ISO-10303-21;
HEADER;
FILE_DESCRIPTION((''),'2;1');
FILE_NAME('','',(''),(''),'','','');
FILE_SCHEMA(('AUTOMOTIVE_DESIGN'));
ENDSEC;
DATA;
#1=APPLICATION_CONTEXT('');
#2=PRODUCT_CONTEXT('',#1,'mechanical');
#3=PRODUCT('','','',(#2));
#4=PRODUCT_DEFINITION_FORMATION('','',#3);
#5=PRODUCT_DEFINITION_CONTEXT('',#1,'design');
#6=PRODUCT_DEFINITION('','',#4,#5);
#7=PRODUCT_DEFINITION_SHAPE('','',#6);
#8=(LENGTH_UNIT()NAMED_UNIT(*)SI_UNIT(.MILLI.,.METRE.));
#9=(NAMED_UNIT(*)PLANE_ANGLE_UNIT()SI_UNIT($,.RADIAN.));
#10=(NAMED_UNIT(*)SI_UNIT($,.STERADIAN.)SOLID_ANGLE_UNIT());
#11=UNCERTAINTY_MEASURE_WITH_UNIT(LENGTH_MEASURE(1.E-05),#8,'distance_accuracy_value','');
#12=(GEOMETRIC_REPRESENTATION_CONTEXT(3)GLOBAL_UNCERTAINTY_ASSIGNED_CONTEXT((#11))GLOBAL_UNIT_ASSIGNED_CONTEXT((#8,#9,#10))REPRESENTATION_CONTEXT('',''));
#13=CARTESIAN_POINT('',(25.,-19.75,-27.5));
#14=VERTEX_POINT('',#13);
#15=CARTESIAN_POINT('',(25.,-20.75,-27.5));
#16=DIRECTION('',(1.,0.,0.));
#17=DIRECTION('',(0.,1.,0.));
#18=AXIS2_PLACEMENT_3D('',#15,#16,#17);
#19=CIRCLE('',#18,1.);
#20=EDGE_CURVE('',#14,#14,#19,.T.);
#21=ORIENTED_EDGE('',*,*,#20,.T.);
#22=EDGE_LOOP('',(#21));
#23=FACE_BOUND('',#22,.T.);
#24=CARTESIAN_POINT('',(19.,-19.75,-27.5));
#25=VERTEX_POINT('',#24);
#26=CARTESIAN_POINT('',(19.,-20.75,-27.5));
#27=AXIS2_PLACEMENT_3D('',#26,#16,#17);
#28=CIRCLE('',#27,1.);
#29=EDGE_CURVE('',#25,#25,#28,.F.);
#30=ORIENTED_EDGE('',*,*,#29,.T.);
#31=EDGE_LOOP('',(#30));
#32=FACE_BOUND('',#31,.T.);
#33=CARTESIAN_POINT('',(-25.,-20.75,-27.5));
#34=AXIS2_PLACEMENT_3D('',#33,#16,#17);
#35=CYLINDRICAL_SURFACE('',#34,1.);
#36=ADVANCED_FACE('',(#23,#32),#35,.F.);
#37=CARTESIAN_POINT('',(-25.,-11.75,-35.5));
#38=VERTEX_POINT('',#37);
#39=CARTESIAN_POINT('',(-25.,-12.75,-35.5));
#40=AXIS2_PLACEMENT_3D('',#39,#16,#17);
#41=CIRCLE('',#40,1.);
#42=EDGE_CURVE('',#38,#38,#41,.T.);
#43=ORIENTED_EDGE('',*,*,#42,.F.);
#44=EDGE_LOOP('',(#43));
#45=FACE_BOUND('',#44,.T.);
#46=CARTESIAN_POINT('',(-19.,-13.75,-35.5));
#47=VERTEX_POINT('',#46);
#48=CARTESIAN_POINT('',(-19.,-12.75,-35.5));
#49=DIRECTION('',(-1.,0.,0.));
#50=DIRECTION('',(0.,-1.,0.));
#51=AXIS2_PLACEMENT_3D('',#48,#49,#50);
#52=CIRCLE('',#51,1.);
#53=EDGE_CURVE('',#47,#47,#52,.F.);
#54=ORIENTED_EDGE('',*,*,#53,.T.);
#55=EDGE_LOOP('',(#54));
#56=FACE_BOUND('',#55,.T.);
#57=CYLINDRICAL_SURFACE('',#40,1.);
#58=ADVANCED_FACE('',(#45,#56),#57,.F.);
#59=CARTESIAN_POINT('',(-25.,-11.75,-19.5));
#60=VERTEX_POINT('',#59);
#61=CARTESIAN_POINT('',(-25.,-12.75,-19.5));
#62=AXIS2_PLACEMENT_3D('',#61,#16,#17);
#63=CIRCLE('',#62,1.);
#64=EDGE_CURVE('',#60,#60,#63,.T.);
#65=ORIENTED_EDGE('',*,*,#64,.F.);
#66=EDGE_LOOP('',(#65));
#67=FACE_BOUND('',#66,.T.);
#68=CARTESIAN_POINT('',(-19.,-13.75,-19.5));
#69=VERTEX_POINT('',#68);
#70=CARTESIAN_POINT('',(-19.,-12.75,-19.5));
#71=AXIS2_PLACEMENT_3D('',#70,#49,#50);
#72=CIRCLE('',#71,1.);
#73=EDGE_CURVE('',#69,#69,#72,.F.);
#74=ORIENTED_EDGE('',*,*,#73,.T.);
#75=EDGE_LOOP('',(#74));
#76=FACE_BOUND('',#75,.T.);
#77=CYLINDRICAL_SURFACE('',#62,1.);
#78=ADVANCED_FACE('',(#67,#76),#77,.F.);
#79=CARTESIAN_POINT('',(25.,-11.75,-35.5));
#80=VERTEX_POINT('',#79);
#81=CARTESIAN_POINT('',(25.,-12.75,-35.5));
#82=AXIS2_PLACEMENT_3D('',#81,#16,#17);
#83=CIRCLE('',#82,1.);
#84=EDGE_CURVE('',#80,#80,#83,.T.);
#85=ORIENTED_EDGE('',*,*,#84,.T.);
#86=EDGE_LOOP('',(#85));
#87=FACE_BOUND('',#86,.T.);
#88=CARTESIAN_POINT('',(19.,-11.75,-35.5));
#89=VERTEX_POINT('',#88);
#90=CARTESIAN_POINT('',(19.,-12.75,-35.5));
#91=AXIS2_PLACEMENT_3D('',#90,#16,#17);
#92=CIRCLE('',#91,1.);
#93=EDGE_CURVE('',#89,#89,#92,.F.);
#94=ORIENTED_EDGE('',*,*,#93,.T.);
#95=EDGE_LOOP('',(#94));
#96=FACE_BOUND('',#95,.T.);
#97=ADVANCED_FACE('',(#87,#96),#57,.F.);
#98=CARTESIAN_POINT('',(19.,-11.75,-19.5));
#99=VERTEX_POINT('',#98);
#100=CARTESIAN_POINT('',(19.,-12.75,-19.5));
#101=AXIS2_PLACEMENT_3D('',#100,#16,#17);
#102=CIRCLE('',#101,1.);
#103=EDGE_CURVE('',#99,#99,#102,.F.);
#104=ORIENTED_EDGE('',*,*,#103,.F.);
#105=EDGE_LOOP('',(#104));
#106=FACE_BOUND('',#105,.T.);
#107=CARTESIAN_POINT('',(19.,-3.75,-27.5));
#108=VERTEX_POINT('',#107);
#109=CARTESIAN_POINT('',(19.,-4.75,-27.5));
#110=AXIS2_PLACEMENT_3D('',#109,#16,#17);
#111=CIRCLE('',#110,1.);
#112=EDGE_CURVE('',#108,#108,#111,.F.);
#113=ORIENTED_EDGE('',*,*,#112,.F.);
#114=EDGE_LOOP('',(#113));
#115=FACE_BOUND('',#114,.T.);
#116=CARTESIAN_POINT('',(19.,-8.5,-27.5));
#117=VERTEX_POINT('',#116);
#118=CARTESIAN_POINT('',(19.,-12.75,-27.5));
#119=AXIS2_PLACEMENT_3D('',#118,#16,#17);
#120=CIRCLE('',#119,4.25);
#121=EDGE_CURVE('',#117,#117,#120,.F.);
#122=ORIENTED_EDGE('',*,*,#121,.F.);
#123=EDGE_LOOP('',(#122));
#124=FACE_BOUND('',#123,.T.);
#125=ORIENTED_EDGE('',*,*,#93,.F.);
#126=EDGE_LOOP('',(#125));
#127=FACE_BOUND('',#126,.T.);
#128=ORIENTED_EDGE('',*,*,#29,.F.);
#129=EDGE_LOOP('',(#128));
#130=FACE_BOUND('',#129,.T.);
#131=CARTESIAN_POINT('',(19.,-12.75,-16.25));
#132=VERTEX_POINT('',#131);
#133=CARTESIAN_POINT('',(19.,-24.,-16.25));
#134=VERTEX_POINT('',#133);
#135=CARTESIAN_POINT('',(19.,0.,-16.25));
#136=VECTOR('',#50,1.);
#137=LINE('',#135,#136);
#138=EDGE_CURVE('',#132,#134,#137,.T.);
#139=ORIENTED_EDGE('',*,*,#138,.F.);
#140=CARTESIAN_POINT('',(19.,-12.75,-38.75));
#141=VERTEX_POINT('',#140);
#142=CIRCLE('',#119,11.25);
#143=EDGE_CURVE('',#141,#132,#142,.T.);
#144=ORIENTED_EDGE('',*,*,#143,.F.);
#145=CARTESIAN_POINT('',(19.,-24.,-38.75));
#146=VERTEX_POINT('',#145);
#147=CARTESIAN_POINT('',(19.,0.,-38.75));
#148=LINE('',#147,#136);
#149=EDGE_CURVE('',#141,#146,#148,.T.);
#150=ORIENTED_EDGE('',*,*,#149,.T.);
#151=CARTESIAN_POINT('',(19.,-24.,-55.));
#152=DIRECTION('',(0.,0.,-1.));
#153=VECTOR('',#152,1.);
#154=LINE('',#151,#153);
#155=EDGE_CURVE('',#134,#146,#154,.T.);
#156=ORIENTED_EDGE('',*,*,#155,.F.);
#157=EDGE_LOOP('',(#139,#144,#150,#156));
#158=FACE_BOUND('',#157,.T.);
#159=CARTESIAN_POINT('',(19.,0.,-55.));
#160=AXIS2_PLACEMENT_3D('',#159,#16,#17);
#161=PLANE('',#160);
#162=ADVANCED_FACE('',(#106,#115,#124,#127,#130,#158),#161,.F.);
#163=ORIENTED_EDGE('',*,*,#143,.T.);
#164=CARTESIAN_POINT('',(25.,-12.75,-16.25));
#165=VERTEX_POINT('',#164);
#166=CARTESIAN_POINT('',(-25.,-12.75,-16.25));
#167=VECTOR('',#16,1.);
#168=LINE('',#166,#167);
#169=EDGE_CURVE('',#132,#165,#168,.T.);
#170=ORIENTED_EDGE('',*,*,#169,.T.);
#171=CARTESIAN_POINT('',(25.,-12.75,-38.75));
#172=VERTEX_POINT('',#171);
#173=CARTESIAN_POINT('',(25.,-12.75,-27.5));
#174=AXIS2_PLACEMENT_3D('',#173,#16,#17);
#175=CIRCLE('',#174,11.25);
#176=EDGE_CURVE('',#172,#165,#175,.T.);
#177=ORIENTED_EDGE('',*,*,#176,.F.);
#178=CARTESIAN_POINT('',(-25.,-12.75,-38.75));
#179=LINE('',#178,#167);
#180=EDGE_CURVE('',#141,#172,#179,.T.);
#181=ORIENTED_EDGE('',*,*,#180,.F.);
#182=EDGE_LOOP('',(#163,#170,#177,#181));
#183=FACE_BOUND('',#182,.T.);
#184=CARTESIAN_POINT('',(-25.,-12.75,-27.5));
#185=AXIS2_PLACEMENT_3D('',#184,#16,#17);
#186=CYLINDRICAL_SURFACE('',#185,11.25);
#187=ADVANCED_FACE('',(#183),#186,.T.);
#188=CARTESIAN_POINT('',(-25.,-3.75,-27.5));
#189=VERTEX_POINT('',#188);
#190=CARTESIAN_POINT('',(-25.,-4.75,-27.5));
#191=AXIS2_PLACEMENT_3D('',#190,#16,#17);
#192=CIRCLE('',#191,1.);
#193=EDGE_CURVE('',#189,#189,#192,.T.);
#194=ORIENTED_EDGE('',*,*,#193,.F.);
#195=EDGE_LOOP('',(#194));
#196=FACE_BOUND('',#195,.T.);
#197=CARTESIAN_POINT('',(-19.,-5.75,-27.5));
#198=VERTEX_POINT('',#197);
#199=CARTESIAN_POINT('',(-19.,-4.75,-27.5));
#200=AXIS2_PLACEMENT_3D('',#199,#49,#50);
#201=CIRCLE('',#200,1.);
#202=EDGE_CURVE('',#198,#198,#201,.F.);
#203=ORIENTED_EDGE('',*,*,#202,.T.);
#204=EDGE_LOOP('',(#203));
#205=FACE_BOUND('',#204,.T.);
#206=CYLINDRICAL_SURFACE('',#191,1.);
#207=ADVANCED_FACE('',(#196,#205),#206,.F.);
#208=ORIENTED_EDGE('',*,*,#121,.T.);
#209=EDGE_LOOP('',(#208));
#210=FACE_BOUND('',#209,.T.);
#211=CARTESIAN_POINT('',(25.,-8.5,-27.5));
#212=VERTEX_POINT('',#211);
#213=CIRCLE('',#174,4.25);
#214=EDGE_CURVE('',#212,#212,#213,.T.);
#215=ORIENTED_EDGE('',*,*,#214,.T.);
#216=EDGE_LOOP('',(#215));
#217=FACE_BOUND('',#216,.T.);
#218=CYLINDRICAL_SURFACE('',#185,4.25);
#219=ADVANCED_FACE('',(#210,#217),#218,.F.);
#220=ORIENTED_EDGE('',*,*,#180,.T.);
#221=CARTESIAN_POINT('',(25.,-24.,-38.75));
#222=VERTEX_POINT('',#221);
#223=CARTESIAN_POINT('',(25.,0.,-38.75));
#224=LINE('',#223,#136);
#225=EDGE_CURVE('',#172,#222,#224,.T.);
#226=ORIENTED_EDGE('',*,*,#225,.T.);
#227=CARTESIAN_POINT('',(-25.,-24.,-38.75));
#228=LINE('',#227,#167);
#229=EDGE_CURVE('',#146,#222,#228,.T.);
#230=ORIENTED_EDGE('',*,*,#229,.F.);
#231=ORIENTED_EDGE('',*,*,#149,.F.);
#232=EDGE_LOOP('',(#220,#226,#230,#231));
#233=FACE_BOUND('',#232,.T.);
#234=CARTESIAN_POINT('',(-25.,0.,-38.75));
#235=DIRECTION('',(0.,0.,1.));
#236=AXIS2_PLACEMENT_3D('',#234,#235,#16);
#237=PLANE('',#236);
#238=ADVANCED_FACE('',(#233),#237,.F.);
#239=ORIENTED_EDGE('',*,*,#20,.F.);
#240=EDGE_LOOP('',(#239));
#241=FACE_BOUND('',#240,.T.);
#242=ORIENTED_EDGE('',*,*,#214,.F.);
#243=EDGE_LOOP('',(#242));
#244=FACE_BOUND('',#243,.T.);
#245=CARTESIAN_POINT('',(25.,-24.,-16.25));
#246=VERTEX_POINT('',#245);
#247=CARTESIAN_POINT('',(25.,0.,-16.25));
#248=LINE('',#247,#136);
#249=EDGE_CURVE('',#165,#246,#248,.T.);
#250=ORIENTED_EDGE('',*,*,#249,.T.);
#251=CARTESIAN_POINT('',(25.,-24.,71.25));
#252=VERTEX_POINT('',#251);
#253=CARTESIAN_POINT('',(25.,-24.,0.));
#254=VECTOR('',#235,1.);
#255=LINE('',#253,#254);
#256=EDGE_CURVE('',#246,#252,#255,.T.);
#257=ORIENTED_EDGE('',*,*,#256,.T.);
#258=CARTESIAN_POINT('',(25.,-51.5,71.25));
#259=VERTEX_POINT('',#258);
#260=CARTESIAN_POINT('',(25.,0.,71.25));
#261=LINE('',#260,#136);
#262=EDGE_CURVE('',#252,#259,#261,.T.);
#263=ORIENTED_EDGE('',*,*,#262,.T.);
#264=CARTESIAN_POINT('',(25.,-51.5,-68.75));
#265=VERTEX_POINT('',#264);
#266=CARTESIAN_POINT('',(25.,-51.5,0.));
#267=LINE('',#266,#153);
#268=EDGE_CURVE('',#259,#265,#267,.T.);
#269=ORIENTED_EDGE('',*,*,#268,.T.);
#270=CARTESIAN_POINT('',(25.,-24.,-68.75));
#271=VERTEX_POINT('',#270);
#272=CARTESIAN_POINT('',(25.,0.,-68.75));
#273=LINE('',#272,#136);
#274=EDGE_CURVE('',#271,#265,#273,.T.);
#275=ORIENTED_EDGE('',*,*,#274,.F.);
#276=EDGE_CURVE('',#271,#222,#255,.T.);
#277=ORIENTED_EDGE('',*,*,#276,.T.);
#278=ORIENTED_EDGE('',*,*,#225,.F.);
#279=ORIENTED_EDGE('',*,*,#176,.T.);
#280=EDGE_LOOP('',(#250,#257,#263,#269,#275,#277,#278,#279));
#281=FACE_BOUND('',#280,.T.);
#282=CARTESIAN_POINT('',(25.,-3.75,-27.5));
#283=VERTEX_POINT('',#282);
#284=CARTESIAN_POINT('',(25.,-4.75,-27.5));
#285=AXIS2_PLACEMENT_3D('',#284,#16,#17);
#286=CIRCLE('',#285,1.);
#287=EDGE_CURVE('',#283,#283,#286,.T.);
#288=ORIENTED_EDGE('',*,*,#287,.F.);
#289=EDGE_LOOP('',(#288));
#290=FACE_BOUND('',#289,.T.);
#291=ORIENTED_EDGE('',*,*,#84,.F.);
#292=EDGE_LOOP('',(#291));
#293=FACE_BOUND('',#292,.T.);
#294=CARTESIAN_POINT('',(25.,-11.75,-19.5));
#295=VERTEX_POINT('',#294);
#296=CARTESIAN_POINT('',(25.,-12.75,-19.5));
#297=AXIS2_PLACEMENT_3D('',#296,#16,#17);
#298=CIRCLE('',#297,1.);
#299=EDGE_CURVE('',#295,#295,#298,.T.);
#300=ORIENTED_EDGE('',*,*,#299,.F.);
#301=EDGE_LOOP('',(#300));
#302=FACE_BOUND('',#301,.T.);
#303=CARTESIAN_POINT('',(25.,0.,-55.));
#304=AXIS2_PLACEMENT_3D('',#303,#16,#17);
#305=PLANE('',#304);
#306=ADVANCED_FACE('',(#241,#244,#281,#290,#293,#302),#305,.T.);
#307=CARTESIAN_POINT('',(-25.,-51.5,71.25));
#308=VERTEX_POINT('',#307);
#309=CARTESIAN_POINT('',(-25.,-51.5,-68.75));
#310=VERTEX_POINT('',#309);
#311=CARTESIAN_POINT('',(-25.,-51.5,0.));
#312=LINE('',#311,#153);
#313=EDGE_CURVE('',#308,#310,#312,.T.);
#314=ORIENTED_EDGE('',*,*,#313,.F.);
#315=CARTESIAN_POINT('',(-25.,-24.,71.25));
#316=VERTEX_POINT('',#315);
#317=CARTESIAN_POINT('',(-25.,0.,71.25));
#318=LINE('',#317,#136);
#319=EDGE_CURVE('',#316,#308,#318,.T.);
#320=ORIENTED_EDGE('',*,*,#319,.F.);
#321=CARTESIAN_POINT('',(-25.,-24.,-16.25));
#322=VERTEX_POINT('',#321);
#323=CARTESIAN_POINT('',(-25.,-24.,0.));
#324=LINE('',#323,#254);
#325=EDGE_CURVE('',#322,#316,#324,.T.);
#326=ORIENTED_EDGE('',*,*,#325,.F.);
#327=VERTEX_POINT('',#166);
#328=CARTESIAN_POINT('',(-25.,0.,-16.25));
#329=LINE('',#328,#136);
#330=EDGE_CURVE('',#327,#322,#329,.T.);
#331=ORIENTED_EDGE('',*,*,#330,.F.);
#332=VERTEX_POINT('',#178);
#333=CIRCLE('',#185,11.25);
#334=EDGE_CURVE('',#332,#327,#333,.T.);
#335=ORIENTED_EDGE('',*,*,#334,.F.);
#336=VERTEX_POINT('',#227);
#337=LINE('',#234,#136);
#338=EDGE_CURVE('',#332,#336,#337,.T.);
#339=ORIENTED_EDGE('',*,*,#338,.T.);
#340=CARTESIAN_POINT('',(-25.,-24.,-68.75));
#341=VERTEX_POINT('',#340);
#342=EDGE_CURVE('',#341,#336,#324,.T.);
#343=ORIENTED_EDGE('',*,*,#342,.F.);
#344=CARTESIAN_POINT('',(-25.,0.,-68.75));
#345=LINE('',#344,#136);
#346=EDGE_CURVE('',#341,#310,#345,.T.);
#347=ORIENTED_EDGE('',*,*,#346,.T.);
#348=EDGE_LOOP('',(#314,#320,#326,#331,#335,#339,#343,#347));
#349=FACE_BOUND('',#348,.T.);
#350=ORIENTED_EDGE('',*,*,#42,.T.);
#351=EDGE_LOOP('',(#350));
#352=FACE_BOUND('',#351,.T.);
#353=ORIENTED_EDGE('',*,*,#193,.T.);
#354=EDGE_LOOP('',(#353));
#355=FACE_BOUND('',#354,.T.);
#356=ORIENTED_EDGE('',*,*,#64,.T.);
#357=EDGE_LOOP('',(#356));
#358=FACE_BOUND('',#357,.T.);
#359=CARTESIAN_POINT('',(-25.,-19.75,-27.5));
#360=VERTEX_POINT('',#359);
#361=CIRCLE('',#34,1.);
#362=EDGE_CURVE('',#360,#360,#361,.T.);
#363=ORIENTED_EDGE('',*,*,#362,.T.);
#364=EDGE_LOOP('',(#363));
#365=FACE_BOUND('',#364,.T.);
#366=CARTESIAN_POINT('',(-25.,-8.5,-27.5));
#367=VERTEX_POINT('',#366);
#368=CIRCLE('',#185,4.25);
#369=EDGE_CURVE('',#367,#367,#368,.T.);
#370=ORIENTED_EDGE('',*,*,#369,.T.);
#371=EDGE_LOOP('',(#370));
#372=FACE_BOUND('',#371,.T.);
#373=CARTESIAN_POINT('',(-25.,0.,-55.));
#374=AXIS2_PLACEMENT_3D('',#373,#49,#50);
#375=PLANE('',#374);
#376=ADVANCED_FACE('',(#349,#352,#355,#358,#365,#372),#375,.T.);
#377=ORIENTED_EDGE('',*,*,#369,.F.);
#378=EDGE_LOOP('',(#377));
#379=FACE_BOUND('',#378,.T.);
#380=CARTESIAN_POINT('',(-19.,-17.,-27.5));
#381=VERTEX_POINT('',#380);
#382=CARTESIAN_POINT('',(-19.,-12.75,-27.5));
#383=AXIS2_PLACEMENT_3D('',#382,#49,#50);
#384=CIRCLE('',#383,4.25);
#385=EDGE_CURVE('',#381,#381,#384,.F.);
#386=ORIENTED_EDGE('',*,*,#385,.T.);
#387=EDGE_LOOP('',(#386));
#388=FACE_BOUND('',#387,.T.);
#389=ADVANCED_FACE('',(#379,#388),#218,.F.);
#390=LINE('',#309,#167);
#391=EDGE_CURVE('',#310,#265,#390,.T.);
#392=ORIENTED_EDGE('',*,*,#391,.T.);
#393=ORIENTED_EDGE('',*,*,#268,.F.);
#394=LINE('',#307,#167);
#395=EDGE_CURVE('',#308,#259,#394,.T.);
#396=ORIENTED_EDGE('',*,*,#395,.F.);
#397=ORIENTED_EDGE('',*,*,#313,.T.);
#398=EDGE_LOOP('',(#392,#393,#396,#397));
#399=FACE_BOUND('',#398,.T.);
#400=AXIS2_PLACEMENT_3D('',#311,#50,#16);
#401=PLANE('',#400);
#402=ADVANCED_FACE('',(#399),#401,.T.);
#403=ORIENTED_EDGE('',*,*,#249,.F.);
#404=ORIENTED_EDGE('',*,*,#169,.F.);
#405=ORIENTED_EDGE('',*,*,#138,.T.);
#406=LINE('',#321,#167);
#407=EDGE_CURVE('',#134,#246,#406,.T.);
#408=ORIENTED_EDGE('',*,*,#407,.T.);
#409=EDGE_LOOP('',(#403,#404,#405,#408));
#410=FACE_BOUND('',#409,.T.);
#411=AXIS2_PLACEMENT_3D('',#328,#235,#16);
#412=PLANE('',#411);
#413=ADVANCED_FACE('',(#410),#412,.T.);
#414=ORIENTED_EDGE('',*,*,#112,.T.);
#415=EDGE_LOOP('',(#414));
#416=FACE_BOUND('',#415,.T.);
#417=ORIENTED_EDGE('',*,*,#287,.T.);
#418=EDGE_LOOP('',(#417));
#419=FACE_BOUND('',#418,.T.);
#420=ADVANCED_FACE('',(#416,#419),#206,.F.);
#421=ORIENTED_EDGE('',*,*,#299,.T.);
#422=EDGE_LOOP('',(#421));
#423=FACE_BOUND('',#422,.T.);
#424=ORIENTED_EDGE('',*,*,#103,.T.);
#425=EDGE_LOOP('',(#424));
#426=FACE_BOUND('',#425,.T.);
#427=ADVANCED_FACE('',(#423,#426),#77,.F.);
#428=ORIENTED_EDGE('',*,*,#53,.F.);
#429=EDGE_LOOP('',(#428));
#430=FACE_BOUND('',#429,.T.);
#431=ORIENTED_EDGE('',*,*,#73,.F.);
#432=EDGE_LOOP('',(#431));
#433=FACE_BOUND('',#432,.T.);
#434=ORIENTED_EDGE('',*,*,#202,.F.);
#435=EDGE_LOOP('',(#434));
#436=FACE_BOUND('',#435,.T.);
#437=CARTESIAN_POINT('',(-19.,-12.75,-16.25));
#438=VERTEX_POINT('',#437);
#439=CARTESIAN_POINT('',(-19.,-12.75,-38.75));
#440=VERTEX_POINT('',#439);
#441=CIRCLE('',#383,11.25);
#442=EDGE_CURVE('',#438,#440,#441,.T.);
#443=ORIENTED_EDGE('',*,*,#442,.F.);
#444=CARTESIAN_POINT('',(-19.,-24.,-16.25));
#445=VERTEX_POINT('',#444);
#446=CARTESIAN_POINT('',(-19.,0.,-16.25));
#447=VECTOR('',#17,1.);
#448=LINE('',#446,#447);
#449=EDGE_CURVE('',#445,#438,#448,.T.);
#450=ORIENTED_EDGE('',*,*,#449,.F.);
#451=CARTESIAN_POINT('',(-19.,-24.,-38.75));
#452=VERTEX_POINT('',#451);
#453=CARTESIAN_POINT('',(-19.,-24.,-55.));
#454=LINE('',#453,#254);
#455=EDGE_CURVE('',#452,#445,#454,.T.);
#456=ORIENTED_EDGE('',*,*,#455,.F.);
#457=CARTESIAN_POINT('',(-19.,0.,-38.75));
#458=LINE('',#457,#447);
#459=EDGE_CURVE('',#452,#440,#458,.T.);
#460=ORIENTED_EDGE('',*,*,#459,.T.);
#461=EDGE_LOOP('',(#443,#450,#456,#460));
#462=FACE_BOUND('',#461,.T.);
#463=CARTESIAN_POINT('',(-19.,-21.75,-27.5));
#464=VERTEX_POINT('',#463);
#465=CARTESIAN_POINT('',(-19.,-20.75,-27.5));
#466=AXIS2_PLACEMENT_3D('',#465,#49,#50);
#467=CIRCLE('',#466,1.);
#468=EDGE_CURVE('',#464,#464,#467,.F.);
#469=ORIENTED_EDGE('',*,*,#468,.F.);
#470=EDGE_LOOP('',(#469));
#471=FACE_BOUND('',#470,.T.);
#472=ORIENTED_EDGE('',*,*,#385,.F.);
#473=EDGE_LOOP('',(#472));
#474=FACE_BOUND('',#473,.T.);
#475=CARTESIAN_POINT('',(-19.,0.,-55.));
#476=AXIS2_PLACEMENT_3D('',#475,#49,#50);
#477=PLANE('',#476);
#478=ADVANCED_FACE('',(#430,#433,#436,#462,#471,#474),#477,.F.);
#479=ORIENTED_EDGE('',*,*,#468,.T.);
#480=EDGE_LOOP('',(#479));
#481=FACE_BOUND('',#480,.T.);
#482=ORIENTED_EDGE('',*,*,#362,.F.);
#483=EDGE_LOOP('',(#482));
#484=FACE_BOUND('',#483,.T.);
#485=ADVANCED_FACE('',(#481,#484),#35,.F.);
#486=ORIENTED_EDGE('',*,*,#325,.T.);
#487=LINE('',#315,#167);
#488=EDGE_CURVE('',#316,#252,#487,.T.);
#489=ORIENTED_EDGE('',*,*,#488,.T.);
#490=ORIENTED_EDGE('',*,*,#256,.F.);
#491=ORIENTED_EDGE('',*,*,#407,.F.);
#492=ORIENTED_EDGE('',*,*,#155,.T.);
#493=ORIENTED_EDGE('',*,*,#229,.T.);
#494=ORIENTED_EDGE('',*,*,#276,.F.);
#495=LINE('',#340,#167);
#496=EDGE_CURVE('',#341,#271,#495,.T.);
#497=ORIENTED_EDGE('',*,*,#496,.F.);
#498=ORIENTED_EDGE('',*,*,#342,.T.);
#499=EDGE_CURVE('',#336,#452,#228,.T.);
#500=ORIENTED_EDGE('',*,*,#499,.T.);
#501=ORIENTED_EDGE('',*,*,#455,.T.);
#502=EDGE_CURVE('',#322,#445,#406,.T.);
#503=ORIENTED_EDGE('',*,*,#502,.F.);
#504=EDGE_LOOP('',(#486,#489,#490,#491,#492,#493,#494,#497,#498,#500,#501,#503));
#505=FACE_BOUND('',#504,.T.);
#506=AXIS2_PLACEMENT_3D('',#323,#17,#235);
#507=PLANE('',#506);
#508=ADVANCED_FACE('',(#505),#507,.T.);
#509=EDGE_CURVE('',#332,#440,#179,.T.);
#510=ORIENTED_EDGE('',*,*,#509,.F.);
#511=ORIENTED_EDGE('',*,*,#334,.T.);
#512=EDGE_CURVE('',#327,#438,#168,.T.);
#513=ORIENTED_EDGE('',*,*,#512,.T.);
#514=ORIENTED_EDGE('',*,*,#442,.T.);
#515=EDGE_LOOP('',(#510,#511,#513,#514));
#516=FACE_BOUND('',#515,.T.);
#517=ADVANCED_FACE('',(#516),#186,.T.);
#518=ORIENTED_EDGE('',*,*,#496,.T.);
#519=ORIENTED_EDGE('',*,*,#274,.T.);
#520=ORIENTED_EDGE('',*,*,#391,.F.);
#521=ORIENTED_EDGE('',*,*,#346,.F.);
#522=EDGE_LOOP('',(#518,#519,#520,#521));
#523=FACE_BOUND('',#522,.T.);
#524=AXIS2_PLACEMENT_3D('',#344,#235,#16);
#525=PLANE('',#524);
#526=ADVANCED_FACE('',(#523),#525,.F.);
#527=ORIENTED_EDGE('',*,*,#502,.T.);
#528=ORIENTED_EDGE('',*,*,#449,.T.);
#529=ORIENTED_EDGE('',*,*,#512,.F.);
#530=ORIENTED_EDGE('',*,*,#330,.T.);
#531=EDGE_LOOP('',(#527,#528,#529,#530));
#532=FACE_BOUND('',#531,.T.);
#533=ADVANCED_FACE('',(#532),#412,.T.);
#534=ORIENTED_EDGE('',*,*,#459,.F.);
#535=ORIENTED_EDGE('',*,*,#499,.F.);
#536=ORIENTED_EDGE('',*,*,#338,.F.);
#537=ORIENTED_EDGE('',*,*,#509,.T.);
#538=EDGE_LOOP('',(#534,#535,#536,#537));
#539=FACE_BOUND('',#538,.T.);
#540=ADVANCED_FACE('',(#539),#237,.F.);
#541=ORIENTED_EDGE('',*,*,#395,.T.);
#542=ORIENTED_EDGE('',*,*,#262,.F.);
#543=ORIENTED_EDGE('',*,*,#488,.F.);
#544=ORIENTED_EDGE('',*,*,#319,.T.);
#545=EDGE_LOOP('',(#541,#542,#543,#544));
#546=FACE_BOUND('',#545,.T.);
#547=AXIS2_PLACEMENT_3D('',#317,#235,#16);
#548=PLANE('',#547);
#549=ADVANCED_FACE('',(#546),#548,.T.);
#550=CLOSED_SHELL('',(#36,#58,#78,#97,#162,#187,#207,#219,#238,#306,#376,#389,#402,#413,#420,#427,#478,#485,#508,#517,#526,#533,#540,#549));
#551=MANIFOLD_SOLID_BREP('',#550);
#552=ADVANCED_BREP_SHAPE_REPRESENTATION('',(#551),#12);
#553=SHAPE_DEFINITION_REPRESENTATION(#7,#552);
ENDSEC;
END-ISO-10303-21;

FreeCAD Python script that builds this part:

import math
import FreeCAD as App
import Part
import Sketcher

V = App.Vector
Q = App.Units.Quantity


def add_polygon(sketch, points):
    """Adds a closed chain of lines whose ends are joined by coincident constraints."""
    first, n = sketch.GeometryCount, len(points)
    for a, b in zip(points, points[1:] + points[:1]):
        sketch.addGeometry(Part.LineSegment(App.Vector(*a, 0), App.Vector(*b, 0)), False)
    for i in range(n):
        sketch.addConstraint(Sketcher.Constraint("Coincident", first + i, 2, first + (i + 1) % n, 1))

doc = App.newDocument("Part")
params = doc.addObject("Spreadsheet::Sheet", "Params")
for row, (alias, value) in enumerate([
    ("sketch1_width", "50 mm"),
    ("sketch1_height", "170 mm"),
    ("pad1_length", "55 mm"),
    ("sketch2_width", "34 mm"),
    ("sketch2_height", "27 mm"),
    ("sketch3_diameter", "2 mm"),
    ("sketch3_diameter2", "8.5 mm"),
    ("sketch3_width", "24 mm"),
    ("sketch3_height", "10 mm"),
    ("sketch4_width", "2 mm"),
    ("sketch4_height", "24 mm"),
    ("sketch5_width", "24 mm"),
    ("sketch5_height", "35 mm"),
    ("sketch5_radius", "11.25 mm"),
    ("sketch5_width2", "11.25 mm"),
    ("sketch6_width", "38 mm"),
    ("sketch6_height", "10 mm"),
    ("sketch7_height", "55 mm"),
    ("sketch7_height2", "28.5 mm"),
    ("sketch7_width", "35.25 mm"),
    ("sketch7_width2", "2.25 mm"),
    ("sketch8_width", "34 mm"),
    ("sketch8_height", "35.25 mm"),
    ("sketch9_height", "55 mm"),
    ("sketch9_radius", "10.25 mm"),
    ("sketch10_width", "15 mm"),
    ("sketch10_height", "28.5 mm"),
    ("pad2_length", "8 mm"),
    ("sketch11_width", "34 mm"),
    ("sketch11_height", "25.25 mm"),
    ("pad3_length", "13.25 mm"),
    ("sketch12_diameter", "9 mm"),
    ("pocket9_length", "8 mm"),
    ("sketch13_height", "55 mm"),
    ("sketch13_width", "106.25 mm"),
    ("pocket10_length", "175.384812 mm"),
    ("sketch14_height", "140 mm"),
    ("sketch14_width", "27.5 mm"),
    ("pad4_length", "50 mm"),
], start=1):
    params.set(f"A{row}", alias)
    params.set(f"B{row}", "=" + value)
    params.setAlias(f"B{row}", alias)

body = doc.addObject("PartDesign::Body", "Body")

# Sketch on XY plane
sketch1 = body.newObject("Sketcher::SketchObject", "Sketch")
sketch1.AttachmentSupport = (doc.getObject("XY_Plane"), [""])
sketch1.MapMode = "FlatFace"
add_polygon(sketch1, [(-25, 0), (-25, -170), (25, -170), (25, 0)])  # lines 0-3
sketch1.addConstraint([
    Sketcher.Constraint("Vertical", 0),
    Sketcher.Constraint("Horizontal", 1),
    Sketcher.Constraint("Vertical", 2),
    Sketcher.Constraint("Horizontal", 3),
    Sketcher.Constraint("Symmetric", 2, 2, 3, 2, -1, 1),
    Sketcher.Constraint("DistanceX", 1, 1, 1, 2, Q("50 mm")),
    Sketcher.Constraint("DistanceY", 0, 2, 0, 1, Q("170 mm")),
])
sketch1.setExpression("Constraints[9]", "Params.sketch1_width")
sketch1.setExpression("Constraints[10]", "Params.sketch1_height")
pad1 = body.newObject("PartDesign::Pad", "Pad")
pad1.Profile = sketch1
pad1.setExpression("Length", "Params.pad1_length")
pad1.Reversed = True

# Sketch on XY plane
sketch2 = body.newObject("Sketcher::SketchObject", "Sketch001")
sketch2.AttachmentSupport = (doc.getObject("XY_Plane"), [""])
sketch2.MapMode = "FlatFace"
add_polygon(sketch2, [(-17, 0), (-17, -27), (17, -27), (17, 0)])  # lines 0-3
sketch2.addConstraint([
    Sketcher.Constraint("Vertical", 0),
    Sketcher.Constraint("Horizontal", 1),
    Sketcher.Constraint("Vertical", 2),
    Sketcher.Constraint("Horizontal", 3),
    Sketcher.Constraint("Symmetric", 2, 2, 3, 2, -1, 1),
    Sketcher.Constraint("DistanceX", 1, 1, 1, 2, Q("34 mm")),
    Sketcher.Constraint("DistanceY", 0, 2, 0, 1, Q("27 mm")),
])
sketch2.setExpression("Constraints[9]", "Params.sketch2_width")
sketch2.setExpression("Constraints[10]", "Params.sketch2_height")
pocket1 = body.newObject("PartDesign::Pocket", "Pocket")
pocket1.Profile = sketch2
pocket1.Type = "ThroughAll"

# Sketch on YZ plane
sketch3 = body.newObject("Sketcher::SketchObject", "Sketch002")
sketch3.AttachmentSupport = (doc.getObject("YZ_Plane"), [""])
sketch3.MapMode = "FlatFace"
sketch3.AttachmentOffset = App.Placement(V(0, 0, 25), App.Rotation())
add_polygon(sketch3, [(0, -45), (-24, -45), (-24, -55), (0, -55)])  # lines 0-3
add_polygon(sketch3, [(0, 0), (-24, 0), (-24, -10), (0, -10)])  # lines 4-7
sketch3.addGeometry(Part.Circle(V(-12.75, -27.5, 0), V(0, 0, 1), 4.25), False)  # 8
sketch3.addGeometry(Part.Circle(V(-12.75, -35.5, 0), V(0, 0, 1), 1), False)  # 9
sketch3.addGeometry(Part.Circle(V(-4.75, -27.5, 0), V(0, 0, 1), 1), False)  # 10
sketch3.addGeometry(Part.Circle(V(-20.75, -27.5, 0), V(0, 0, 1), 1), False)  # 11
sketch3.addGeometry(Part.Circle(V(-12.75, -19.5, 0), V(0, 0, 1), 1), False)  # 12
sketch3.addConstraint([
    Sketcher.Constraint("Horizontal", 0),
    Sketcher.Constraint("Vertical", 1),
    Sketcher.Constraint("Horizontal", 2),
    Sketcher.Constraint("Vertical", 3),
    Sketcher.Constraint("Horizontal", 4),
    Sketcher.Constraint("Vertical", 5),
    Sketcher.Constraint("Horizontal", 6),
    Sketcher.Constraint("Vertical", 7),
    Sketcher.Constraint("Coincident", 7, 2, -1, 1),
    Sketcher.Constraint("Equal", 9, 10),
    Sketcher.Constraint("Equal", 10, 11),
    Sketcher.Constraint("Equal", 11, 12),
    Sketcher.Constraint("PointOnObject", 2, 2, -2),
    Sketcher.Constraint("Horizontal", 8, 3, 10, 3),
    Sketcher.Constraint("Horizontal", 10, 3, 11, 3),
    Sketcher.Constraint("Vertical", 8, 3, 9, 3),
    Sketcher.Constraint("Vertical", 9, 3, 12, 3),
    Sketcher.Constraint("Vertical", 1, 2, 4, 2),
    Sketcher.Constraint("Equal", 3, 5),
    Sketcher.Constraint("Diameter", 9, Q("2 mm")),
    Sketcher.Constraint("Diameter", 8, Q("8.5 mm")),
    Sketcher.Constraint("DistanceX", 0, 2, 0, 1, Q("24 mm")),
    Sketcher.Constraint("DistanceY", 1, 2, 1, 1, Q("10 mm")),
    Sketcher.Constraint("DistanceY", 0, 2, -1, 1, Q("45 mm")),
    Sketcher.Constraint("DistanceY", 9, 3, 8, 3, Q("8 mm")),
    Sketcher.Constraint("DistanceX", 8, 3, 10, 3, Q("8 mm")),
    Sketcher.Constraint("DistanceX", 11, 3, 8, 3, Q("8 mm")),
    Sketcher.Constraint("DistanceY", 8, 3, 12, 3, Q("8 mm")),
    Sketcher.Constraint("DistanceY", 8, 3, -1, 1, Q("27.5 mm")),
    Sketcher.Constraint("DistanceX", 8, 3, -1, 1, Q("12.75 mm")),
])
sketch3.setExpression("Constraints[27]", "Params.sketch3_diameter")
sketch3.setExpression("Constraints[28]", "Params.sketch3_diameter2")
sketch3.setExpression("Constraints[29]", "Params.sketch3_width")
sketch3.setExpression("Constraints[30]", "Params.sketch3_height")
pocket2 = body.newObject("PartDesign::Pocket", "Pocket001")
pocket2.Profile = sketch3
pocket2.Type = "ThroughAll"

# Sketch on XY plane
sketch4 = body.newObject("Sketcher::SketchObject", "Sketch003")
sketch4.AttachmentSupport = (doc.getObject("XY_Plane"), [""])
sketch4.MapMode = "FlatFace"
sketch4.AttachmentOffset = App.Placement(V(0, 0, -10), App.Rotation())
add_polygon(sketch4, [(-19, 0), (-19, -24), (-17, -24), (-17, 0)])  # lines 0-3
add_polygon(sketch4, [(17, 0), (17, -24), (19, -24), (19, 0)])  # lines 4-7
sketch4.addConstraint([
    Sketcher.Constraint("Vertical", 0),
    Sketcher.Constraint("Horizontal", 1),
    Sketcher.Constraint("Vertical", 2),
    Sketcher.Constraint("Horizontal", 3),
    Sketcher.Constraint("Vertical", 4),
    Sketcher.Constraint("Horizontal", 5),
    Sketcher.Constraint("Vertical", 6),
    Sketcher.Constraint("Horizontal", 7),
    Sketcher.Constraint("Symmetric", 3, 2, 6, 2, -1, 1),
    Sketcher.Constraint("Symmetric", 1, 2, 4, 2, -2),
    Sketcher.Constraint("PointOnObject", 2, 2, -1),
    Sketcher.Constraint("DistanceX", 1, 1, 1, 2, Q("2 mm")),
    Sketcher.Constraint("DistanceY", 0, 2, 0, 1, Q("24 mm")),
    Sketcher.Constraint("DistanceX", 0, 2, -1, 1, Q("19 mm")),
])
sketch4.setExpression("Constraints[19]", "Params.sketch4_width")
sketch4.setExpression("Constraints[20]", "Params.sketch4_height")
pocket3 = body.newObject("PartDesign::Pocket", "Pocket002")
pocket3.Profile = sketch4
pocket3.Type = "ThroughAll"

# Sketch on YZ plane
sketch5 = body.newObject("Sketcher::SketchObject", "Sketch004")
sketch5.AttachmentSupport = (doc.getObject("YZ_Plane"), [""])
sketch5.MapMode = "FlatFace"
sketch5.AttachmentOffset = App.Placement(V(0, 0, 25), App.Rotation())
sketch5.addGeometry([
    Part.LineSegment(V(0, -45, 0), V(0, -10, 0)),  # 0
    Part.LineSegment(V(0, -10, 0), V(-24, -10, 0)),  # 1
    Part.LineSegment(V(-24, -10, 0), V(-24, -16.25, 0)),  # 2
    Part.LineSegment(V(-24, -16.25, 0), V(-12.75, -16.25, 0)),  # 3
    Part.ArcOfCircle(Part.Circle(V(-12.75, -27.5, 0), V(0, 0, 1), 11.25), math.radians(-90), math.radians(90)),  # 4
    Part.LineSegment(V(-12.75, -38.75, 0), V(-24, -38.75, 0)),  # 5
    Part.LineSegment(V(-24, -38.75, 0), V(-24, -45, 0)),  # 6
    Part.LineSegment(V(-24, -45, 0), V(0, -45, 0)),  # 7
], False)
sketch5.addConstraint([
    Sketcher.Constraint("Coincident", 0, 2, 1, 1),
    Sketcher.Constraint("Coincident", 1, 2, 2, 1),
    Sketcher.Constraint("Coincident", 2, 2, 3, 1),
    Sketcher.Constraint("Tangent", 3, 2, 4, 2),
    Sketcher.Constraint("Tangent", 4, 1, 5, 1),
    Sketcher.Constraint("Coincident", 5, 2, 6, 1),
    Sketcher.Constraint("Coincident", 6, 2, 7, 1),
    Sketcher.Constraint("Coincident", 7, 2, 0, 1),
    Sketcher.Constraint("Vertical", 0),
    Sketcher.Constraint("Horizontal", 1),
    Sketcher.Constraint("Vertical", 2),
    Sketcher.Constraint("Horizontal", 3),
    Sketcher.Constraint("Horizontal", 5),
    Sketcher.Constraint("Vertical", 6),
    Sketcher.Constraint("Horizontal", 7),
    Sketcher.Constraint("PointOnObject", 0, 2, -2),
    Sketcher.Constraint("Vertical", 2, 2, 5, 2),
    Sketcher.Constraint("Equal", 2, 6),
    Sketcher.Constraint("DistanceX", 1, 2, 1, 1, Q("24 mm")),
    Sketcher.Constraint("DistanceY", 0, 1, 0, 2, Q("35 mm")),
    Sketcher.Constraint("Radius", 4, Q("11.25 mm")),
    Sketcher.Constraint("DistanceY", 0, 2, -1, 1, Q("10 mm")),
    Sketcher.Constraint("DistanceX", 3, 1, 3, 2, Q("11.25 mm")),
])
sketch5.setExpression("Constraints[18]", "Params.sketch5_width")
sketch5.setExpression("Constraints[19]", "Params.sketch5_height")
sketch5.setExpression("Constraints[20]", "Params.sketch5_radius")
sketch5.setExpression("Constraints[22]", "Params.sketch5_width2")
pocket4 = body.newObject("PartDesign::Pocket", "Pocket003")
pocket4.Profile = sketch5
pocket4.Type = "ThroughAll"

# Sketch on XY plane
sketch6 = body.newObject("Sketcher::SketchObject", "Sketch005")
sketch6.AttachmentSupport = (doc.getObject("XY_Plane"), [""])
sketch6.MapMode = "FlatFace"
add_polygon(sketch6, [(-19, -24), (-19, -34), (19, -34), (19, -24)])  # lines 0-3
sketch6.addConstraint([
    Sketcher.Constraint("Vertical", 0),
    Sketcher.Constraint("Horizontal", 1),
    Sketcher.Constraint("Vertical", 2),
    Sketcher.Constraint("Horizontal", 3),
    Sketcher.Constraint("DistanceX", 1, 1, 1, 2, Q("38 mm")),
    Sketcher.Constraint("DistanceY", 0, 2, 0, 1, Q("10 mm")),
    Sketcher.Constraint("DistanceX", 0, 2, -1, 1, Q("19 mm")),
    Sketcher.Constraint("DistanceY", 0, 2, -1, 1, Q("34 mm")),
])
sketch6.setExpression("Constraints[8]", "Params.sketch6_width")
sketch6.setExpression("Constraints[9]", "Params.sketch6_height")
pocket5 = body.newObject("PartDesign::Pocket", "Pocket004")
pocket5.Profile = sketch6
pocket5.Type = "ThroughAll"

# Sketch on YZ plane
sketch7 = body.newObject("Sketcher::SketchObject", "Sketch006")
sketch7.AttachmentSupport = (doc.getObject("YZ_Plane"), [""])
sketch7.MapMode = "FlatFace"
sketch7.AttachmentOffset = App.Placement(V(0, 0, 25), App.Rotation())
add_polygon(sketch7, [(-132.5, -13.25), (-167.75, -13.25), (-167.75, 0), (-170, 0), (-170, -55), (-167.75, -55), (-167.75, -41.75), (-132.5, -41.75)])  # lines 0-7
sketch7.addConstraint([
    Sketcher.Constraint("Horizontal", 0),
    Sketcher.Constraint("Vertical", 1),
    Sketcher.Constraint("Horizontal", 2),
    Sketcher.Constraint("Vertical", 3),
    Sketcher.Constraint("Horizontal", 4),
    Sketcher.Constraint("Vertical", 5),
    Sketcher.Constraint("Horizontal", 6),
    Sketcher.Constraint("Vertical", 7),
    Sketcher.Constraint("PointOnObject", 1, 2, -1),
    Sketcher.Constraint("Vertical", 1, 2, 4, 2),
    Sketcher.Constraint("Equal", 1, 5),
    Sketcher.Constraint("DistanceY", 3, 2, 3, 1, Q("55 mm")),
    Sketcher.Constraint("DistanceY", 7, 1, 7, 2, Q("28.5 mm")),
    Sketcher.Constraint("DistanceX", 2, 2, -1, 1, Q("170 mm")),
    Sketcher.Constraint("DistanceX", 0, 2, 0, 1, Q("35.25 mm")),
    Sketcher.Constraint("DistanceX", 2, 2, 2, 1, Q("2.25 mm")),
])
sketch7.setExpression("Constraints[19]", "Params.sketch7_height")
sketch7.setExpression("Constraints[20]", "Params.sketch7_height2")
sketch7.setExpression("Constraints[22]", "Params.sketch7_width")
sketch7.setExpression("Constraints[23]", "Params.sketch7_width2")
pocket6 = body.newObject("PartDesign::Pocket", "Pocket005")
pocket6.Profile = sketch7
pocket6.Type = "ThroughAll"

# Sketch on XY plane
sketch8 = body.newObject("Sketcher::SketchObject", "Sketch007")
sketch8.AttachmentSupport = (doc.getObject("XY_Plane"), [""])
sketch8.MapMode = "FlatFace"
add_polygon(sketch8, [(-17, -132.5), (-17, -167.75), (17, -167.75), (17, -132.5)])  # lines 0-3
sketch8.addConstraint([
    Sketcher.Constraint("Vertical", 0),
    Sketcher.Constraint("Horizontal", 1),
    Sketcher.Constraint("Vertical", 2),
    Sketcher.Constraint("Horizontal", 3),
    Sketcher.Constraint("DistanceX", 1, 1, 1, 2, Q("34 mm")),
    Sketcher.Constraint("DistanceX", 0, 2, -1, 1, Q("17 mm")),
    Sketcher.Constraint("DistanceY", 0, 2, 0, 1, Q("35.25 mm")),
    Sketcher.Constraint("DistanceY", 2, 2, -1, 1, Q("132.5 mm")),
])
sketch8.setExpression("Constraints[8]", "Params.sketch8_width")
sketch8.setExpression("Constraints[10]", "Params.sketch8_height")
pocket7 = body.newObject("PartDesign::Pocket", "Pocket006")
pocket7.Profile = sketch8
pocket7.Type = "ThroughAll"

# Sketch on YZ plane
sketch9 = body.newObject("Sketcher::SketchObject", "Sketch008")
sketch9.AttachmentSupport = (doc.getObject("YZ_Plane"), [""])
sketch9.MapMode = "FlatFace"
sketch9.AttachmentOffset = App.Placement(V(0, 0, 25), App.Rotation())
sketch9.addGeometry([
    Part.ArcOfCircle(Part.Circle(V(-167.75, -27.5, 0), V(0, 0, 1), 10.25), math.radians(0), math.radians(90)),  # 0
    Part.ArcOfCircle(Part.Circle(V(-167.75, -27.5, 0), V(0, 0, 1), 10.25), math.radians(-90), math.radians(0)),  # 1
    Part.LineSegment(V(-167.75, -37.75, 0), V(-167.75, -55, 0)),  # 2
    Part.LineSegment(V(-167.75, -55, 0), V(-147.5, -55, 0)),  # 3
    Part.LineSegment(V(-147.5, -55, 0), V(-147.5, 0, 0)),  # 4
    Part.LineSegment(V(-147.5, 0, 0), V(-167.75, 0, 0)),  # 5
    Part.LineSegment(V(-167.75, 0, 0), V(-167.75, -17.25, 0)),  # 6
], False)
sketch9.addConstraint([
    Sketcher.Constraint("Tangent", 0, 1, 1, 2),
    Sketcher.Constraint("Coincident", 1, 1, 2, 1),
    Sketcher.Constraint("Coincident", 2, 2, 3, 1),
    Sketcher.Constraint("Coincident", 3, 2, 4, 1),
    Sketcher.Constraint("Coincident", 4, 2, 5, 1),
    Sketcher.Constraint("Coincident", 5, 2, 6, 1),
    Sketcher.Constraint("Coincident", 6, 2, 0, 2),
    Sketcher.Constraint("Vertical", 2),
    Sketcher.Constraint("Horizontal", 3),
    Sketcher.Constraint("Vertical", 4),
    Sketcher.Constraint("Horizontal", 5),
    Sketcher.Constraint("Vertical", 6),
    Sketcher.Constraint("Equal", 0, 1),
    Sketcher.Constraint("PointOnObject", 4, 2, -1),
    Sketcher.Constraint("Horizontal", 1, 3, 0, 1),
    Sketcher.Constraint("Vertical", 0, 3, 1, 1),
    Sketcher.Constraint("Vertical", 2, 2, 5, 2),
    Sketcher.Constraint("Equal", 2, 6),
    Sketcher.Constraint("DistanceY", 4, 1, 4, 2, Q("55 mm")),
    Sketcher.Constraint("Radius", 0, Q("10.25 mm")),
    Sketcher.Constraint("DistanceX", 0, 1, 3, 2, Q("10 mm")),
    Sketcher.Constraint("DistanceX", 0, 1, -1, 1, Q("157.5 mm")),
])
sketch9.setExpression("Constraints[18]", "Params.sketch9_height")
sketch9.setExpression("Constraints[19]", "Params.sketch9_radius")
pocket8 = body.newObject("PartDesign::Pocket", "Pocket007")
pocket8.Profile = sketch9
pocket8.Type = "ThroughAll"

# Sketch on YZ plane
sketch10 = body.newObject("Sketcher::SketchObject", "Sketch009")
sketch10.AttachmentSupport = (doc.getObject("YZ_Plane"), [""])
sketch10.MapMode = "FlatFace"
sketch10.AttachmentOffset = App.Placement(V(0, 0, 25), App.Rotation())
add_polygon(sketch10, [(-132.5, -13.25), (-147.5, -13.25), (-147.5, -41.75), (-132.5, -41.75)])  # lines 0-3
sketch10.addConstraint([
    Sketcher.Constraint("Horizontal", 0),
    Sketcher.Constraint("Vertical", 1),
    Sketcher.Constraint("Horizontal", 2),
    Sketcher.Constraint("Vertical", 3),
    Sketcher.Constraint("DistanceX", 0, 2, 0, 1, Q("15 mm")),
    Sketcher.Constraint("DistanceY", 1, 2, 1, 1, Q("28.5 mm")),
    Sketcher.Constraint("DistanceX", 0, 2, -1, 1, Q("147.5 mm")),
    Sketcher.Constraint("DistanceY", 0, 2, -1, 1, Q("13.25 mm")),
])
sketch10.setExpression("Constraints[8]", "Params.sketch10_width")
sketch10.setExpression("Constraints[9]", "Params.sketch10_height")
pad2 = body.newObject("PartDesign::Pad", "Pad001")
pad2.Profile = sketch10
pad2.setExpression("Length", "Params.pad2_length")
pad2.Reversed = True
doc.recompute()

mirrored = body.newObject("PartDesign::Mirrored", "Mirrored")
mirrored.Originals = [pad2]
mirrored.MirrorPlane = (doc.getObject("YZ_Plane"), [""])
body.Tip = mirrored

# Sketch on XY plane
sketch11 = body.newObject("Sketcher::SketchObject", "Sketch010")
sketch11.AttachmentSupport = (doc.getObject("XY_Plane"), [""])
sketch11.MapMode = "FlatFace"
add_polygon(sketch11, [(-17, -132.5), (-17, -157.75), (17, -157.75), (17, -132.5)])  # lines 0-3
sketch11.addConstraint([
    Sketcher.Constraint("Vertical", 0),
    Sketcher.Constraint("Horizontal", 1),
    Sketcher.Constraint("Vertical", 2),
    Sketcher.Constraint("Horizontal", 3),
    Sketcher.Constraint("DistanceX", 1, 1, 1, 2, Q("34 mm")),
    Sketcher.Constraint("DistanceX", 0, 2, -1, 1, Q("17 mm")),
    Sketcher.Constraint("DistanceY", 0, 2, 0, 1, Q("25.25 mm")),
    Sketcher.Constraint("DistanceY", 2, 2, -1, 1, Q("132.5 mm")),
])
sketch11.setExpression("Constraints[8]", "Params.sketch11_width")
sketch11.setExpression("Constraints[10]", "Params.sketch11_height")
pad3 = body.newObject("PartDesign::Pad", "Pad002")
pad3.Profile = sketch11
pad3.setExpression("Length", "Params.pad3_length")
pad3.Reversed = True
doc.recompute()

datumplane = body.newObject("PartDesign::Plane", "DatumPlane")
datumplane.AttachmentSupport = (doc.getObject("XY_Plane"), [""])
datumplane.MapMode = "FlatFace"
datumplane.AttachmentOffset = App.Placement(V(0, 0, -27.5), App.Rotation())
mirrored2 = body.newObject("PartDesign::Mirrored", "Mirrored001")
mirrored2.Originals = [pad3]
mirrored2.MirrorPlane = (datumplane, [""])
body.Tip = mirrored2

# Sketch on YZ plane
sketch12 = body.newObject("Sketcher::SketchObject", "Sketch011")
sketch12.AttachmentSupport = (doc.getObject("YZ_Plane"), [""])
sketch12.MapMode = "FlatFace"
sketch12.AttachmentOffset = App.Placement(V(0, 0, 25), App.Rotation())
sketch12.addGeometry([
    Part.Circle(V(-135.75, -16.5, 0), V(0, 0, 1), 4.5),
    Part.Circle(V(-135.75, -38.5, 0), V(0, 0, 1), 4.5),
], False)
sketch12.addConstraint([
    Sketcher.Constraint("Equal", 0, 1),
    Sketcher.Constraint("Vertical", 0, 3, 1, 3),
    Sketcher.Constraint("Diameter", 0, Q("9 mm")),
    Sketcher.Constraint("DistanceY", 1, 3, 0, 3, Q("22 mm")),
    Sketcher.Constraint("DistanceY", 0, 3, -1, 1, Q("16.5 mm")),
    Sketcher.Constraint("DistanceX", 0, 3, -1, 1, Q("135.75 mm")),
])
sketch12.setExpression("Constraints[2]", "Params.sketch12_diameter")
pocket9 = body.newObject("PartDesign::Pocket", "Pocket008")
pocket9.Profile = sketch12
pocket9.setExpression("Length", "Params.pocket9_length")
doc.recompute()

mirrored3 = body.newObject("PartDesign::Mirrored", "Mirrored002")
mirrored3.Originals = [pocket9]
mirrored3.MirrorPlane = (doc.getObject("YZ_Plane"), [""])
body.Tip = mirrored3

# Sketch on YZ plane
sketch13 = body.newObject("Sketcher::SketchObject", "Sketch012")
sketch13.AttachmentSupport = (doc.getObject("YZ_Plane"), [""])
sketch13.MapMode = "FlatFace"
sketch13.AttachmentOffset = App.Placement(V(0, 0, 25), App.Rotation())
add_polygon(sketch13, [(-51.5, -55), (-51.5, 0), (-157.75, 0), (-157.75, -55)])  # lines 0-3
sketch13.addConstraint([
    Sketcher.Constraint("Vertical", 0),
    Sketcher.Constraint("Horizontal", 1),
    Sketcher.Constraint("Vertical", 2),
    Sketcher.Constraint("Horizontal", 3),
    Sketcher.Constraint("PointOnObject", 0, 2, -1),
    Sketcher.Constraint("DistanceY", 0, 1, 0, 2, Q("55 mm")),
    Sketcher.Constraint("DistanceX", 1, 2, 1, 1, Q("106.25 mm")),
    Sketcher.Constraint("DistanceX", 0, 2, -1, 1, Q("51.5 mm")),
])
sketch13.setExpression("Constraints[9]", "Params.sketch13_height")
sketch13.setExpression("Constraints[10]", "Params.sketch13_width")
pocket10 = body.newObject("PartDesign::Pocket", "Pocket009")
pocket10.Profile = sketch13
pocket10.setExpression("Length", "Params.pocket10_length")

# Sketch on YZ plane
sketch14 = body.newObject("Sketcher::SketchObject", "Sketch013")
sketch14.AttachmentSupport = (doc.getObject("YZ_Plane"), [""])
sketch14.MapMode = "FlatFace"
sketch14.AttachmentOffset = App.Placement(V(0, 0, 25), App.Rotation())
add_polygon(sketch14, [(-24, 71.25), (-51.5, 71.25), (-51.5, -68.75), (-24, -68.75)])  # lines 0-3
sketch14.addConstraint([
    Sketcher.Constraint("Horizontal", 0),
    Sketcher.Constraint("Vertical", 1),
    Sketcher.Constraint("Horizontal", 2),
    Sketcher.Constraint("Vertical", 3),
    Sketcher.Constraint("DistanceY", 1, 2, 1, 1, Q("140 mm")),
    Sketcher.Constraint("DistanceX", 0, 2, 0, 1, Q("27.5 mm")),
    Sketcher.Constraint("DistanceX", 2, 2, -1, 1, Q("24 mm")),
    Sketcher.Constraint("DistanceY", -1, 1, 0, 2, Q("71.25 mm")),
])
sketch14.setExpression("Constraints[8]", "Params.sketch14_height")
sketch14.setExpression("Constraints[9]", "Params.sketch14_width")
pad4 = body.newObject("PartDesign::Pad", "Pad003")
pad4.Profile = sketch14
pad4.setExpression("Length", "Params.pad4_length")
pad4.Reversed = True

doc.recompute()
